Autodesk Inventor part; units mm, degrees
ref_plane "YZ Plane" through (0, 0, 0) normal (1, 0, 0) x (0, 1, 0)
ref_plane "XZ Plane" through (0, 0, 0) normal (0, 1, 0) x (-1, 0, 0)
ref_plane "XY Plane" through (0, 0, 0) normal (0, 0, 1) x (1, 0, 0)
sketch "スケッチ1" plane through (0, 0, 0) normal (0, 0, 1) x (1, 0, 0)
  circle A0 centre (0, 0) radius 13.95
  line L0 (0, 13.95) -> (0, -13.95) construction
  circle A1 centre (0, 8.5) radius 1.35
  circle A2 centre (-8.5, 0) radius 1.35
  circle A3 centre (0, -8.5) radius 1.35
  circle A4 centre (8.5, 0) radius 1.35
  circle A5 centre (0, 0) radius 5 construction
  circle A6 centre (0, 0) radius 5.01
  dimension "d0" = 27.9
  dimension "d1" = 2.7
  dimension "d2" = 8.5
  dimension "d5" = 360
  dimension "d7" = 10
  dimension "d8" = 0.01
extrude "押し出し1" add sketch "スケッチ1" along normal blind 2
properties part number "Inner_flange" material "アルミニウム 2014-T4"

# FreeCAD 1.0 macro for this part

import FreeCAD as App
import Part
import Sketcher
Q = App.Units.Quantity

doc = App.newDocument("Part")
body = doc.addObject("PartDesign::Body", "Body")

sketch1 = body.newObject("Sketcher::SketchObject", "Sketch")
sketch1.AttachmentSupport = (doc.getObject("XY_Plane"), [""])
sketch1.MapMode = "FlatFace"
sketch1.addGeometry(Part.Circle(App.Vector(0, 0, 0), App.Vector(0, 0, 1), 13.95), False)
sketch1.addGeometry(Part.Circle(App.Vector(0, -8.5, 0), App.Vector(0, 0, 1), 1.35), False)
sketch1.addGeometry(Part.Circle(App.Vector(-8.5, 0, 0), App.Vector(0, 0, 1), 1.35), False)
sketch1.addGeometry(Part.Circle(App.Vector(0, 0, 0), App.Vector(0, 0, 1), 5.01), False)
sketch1.addGeometry(Part.Circle(App.Vector(8.5, 0, 0), App.Vector(0, 0, 1), 1.35), False)
sketch1.addGeometry(Part.Circle(App.Vector(0, 8.5, 0), App.Vector(0, 0, 1), 1.35), False)
sketch1.addConstraint(Sketcher.Constraint("Coincident", 0, 3, -1, 1))
sketch1.addConstraint(Sketcher.Constraint("Coincident", 3, 3, -1, 1))
sketch1.addConstraint(Sketcher.Constraint("Equal", 1, 2))
sketch1.addConstraint(Sketcher.Constraint("Equal", 2, 4))
sketch1.addConstraint(Sketcher.Constraint("Equal", 4, 5))
sketch1.addConstraint(Sketcher.Constraint("Symmetric", 2, 3, 4, 3, -1, 1))
sketch1.addConstraint(Sketcher.Constraint("Symmetric", 1, 3, 5, 3, -1, 1))
sketch1.addConstraint(Sketcher.Constraint("PointOnObject", 1, 3, -2))
sketch1.addConstraint(Sketcher.Constraint("PointOnObject", 2, 3, -1))
sketch1.addConstraint(Sketcher.Constraint("Diameter", 0, Q("27.9 mm")))
sketch1.addConstraint(Sketcher.Constraint("Diameter", 1, Q("2.7 mm")))
sketch1.addConstraint(Sketcher.Constraint("DistanceY", 1, 3, -1, 1, Q("8.5 mm")))
sketch1.addConstraint(Sketcher.Constraint("DistanceX", 2, 3, -1, 1, Q("8.5 mm")))
sketch1.addConstraint(Sketcher.Constraint("Diameter", 3, Q("10.02 mm")))
pad1 = body.newObject("PartDesign::Pad", "Pad")
pad1.Profile = sketch1
pad1.Length = 2

doc.recompute()
